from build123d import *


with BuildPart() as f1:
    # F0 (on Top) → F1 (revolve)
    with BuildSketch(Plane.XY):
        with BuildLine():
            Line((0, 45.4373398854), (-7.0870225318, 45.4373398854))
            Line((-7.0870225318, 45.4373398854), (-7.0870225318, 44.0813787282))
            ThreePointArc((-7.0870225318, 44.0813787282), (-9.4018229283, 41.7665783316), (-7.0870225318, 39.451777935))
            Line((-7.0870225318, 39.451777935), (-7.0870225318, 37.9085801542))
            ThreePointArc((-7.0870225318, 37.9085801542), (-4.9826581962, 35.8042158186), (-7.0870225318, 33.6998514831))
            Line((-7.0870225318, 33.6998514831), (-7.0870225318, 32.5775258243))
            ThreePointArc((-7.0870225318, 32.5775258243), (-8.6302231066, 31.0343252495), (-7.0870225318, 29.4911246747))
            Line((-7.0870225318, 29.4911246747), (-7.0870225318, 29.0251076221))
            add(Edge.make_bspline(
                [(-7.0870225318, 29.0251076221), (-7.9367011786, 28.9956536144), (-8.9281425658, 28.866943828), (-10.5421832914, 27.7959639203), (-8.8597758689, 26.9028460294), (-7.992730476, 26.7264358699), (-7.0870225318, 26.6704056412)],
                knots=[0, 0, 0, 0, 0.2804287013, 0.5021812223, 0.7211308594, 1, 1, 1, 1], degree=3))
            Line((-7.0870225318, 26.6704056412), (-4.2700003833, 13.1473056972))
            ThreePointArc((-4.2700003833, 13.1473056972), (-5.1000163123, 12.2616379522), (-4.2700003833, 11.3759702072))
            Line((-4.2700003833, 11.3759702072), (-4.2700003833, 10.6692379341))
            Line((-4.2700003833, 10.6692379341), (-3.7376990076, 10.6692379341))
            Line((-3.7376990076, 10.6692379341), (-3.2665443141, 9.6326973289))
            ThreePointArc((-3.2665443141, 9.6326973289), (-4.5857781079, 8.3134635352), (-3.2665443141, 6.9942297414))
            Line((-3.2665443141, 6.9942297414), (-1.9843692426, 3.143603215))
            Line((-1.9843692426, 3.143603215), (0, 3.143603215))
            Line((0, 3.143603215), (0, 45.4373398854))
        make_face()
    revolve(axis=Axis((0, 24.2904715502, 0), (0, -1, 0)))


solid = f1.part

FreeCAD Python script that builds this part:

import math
import FreeCAD as App
import Part
import Sketcher
from FreeCAD import Vector
Q = App.Units.Quantity

doc = App.newDocument("Part")
body = doc.addObject("PartDesign::Body", "Body")

# Sketch on XY plane
sketch1 = doc.addObject("Sketcher::SketchObject", "Sketch")
body.addObject(sketch1)
sketch1.AttachmentSupport = (doc.XY_Plane, [""])
sketch1.MapMode = "FlatFace"
sketch1.addGeometry([
    Part.LineSegment(Vector(0, 45.43734, 0), Vector(-7.087023, 45.43734, 0)),  # 0
    Part.LineSegment(Vector(-7.087023, 45.43734, 0), Vector(-7.087023, 44.081379, 0)),  # 1
    Part.ArcOfCircle(Part.Circle(Vector(-7.087023, 41.766578, 0), Vector(0, 0, 1), 2.3148), math.radians(90), math.radians(270)),  # 2
    Part.LineSegment(Vector(-7.087023, 39.451778, 0), Vector(-7.087023, 37.90858, 0)),  # 3
    Part.ArcOfCircle(Part.Circle(Vector(-7.087023, 35.804216, 0), Vector(0, 0, 1), 2.104364), math.radians(-90), math.radians(90)),  # 4
    Part.LineSegment(Vector(-7.087023, 33.699851, 0), Vector(-7.087023, 32.577526, 0)),  # 5
    Part.ArcOfCircle(Part.Circle(Vector(-7.087023, 31.034325, 0), Vector(0, 0, 1), 1.543201), math.radians(90), math.radians(270)),  # 6
    Part.LineSegment(Vector(-7.087023, 29.491125, 0), Vector(-7.087023, 29.025108, 0)),  # 7
    Part.BSplineCurve([Vector(-7.087023, 29.025108, 0), Vector(-7.936701, 28.995654, 0), Vector(-8.928143, 28.866944, 0), Vector(-10.542183, 27.795964, 0), Vector(-8.859776, 26.902846, 0), Vector(-7.99273, 26.726436, 0), Vector(-7.087023, 26.670406, 0)], [4, 1, 1, 1, 4], [0, 0.280428701, 0.502181222, 0.721130859, 1], False, 3, [1, 1, 1, 1, 1, 1, 1], False),  # 8
    Part.LineSegment(Vector(-7.087023, 26.670406, 0), Vector(-4.27, 13.147306, 0)),  # 9
    Part.ArcOfCircle(Part.Circle(Vector(-4.212483, 12.261638, 0), Vector(0, 0, 1), 0.887533), math.radians(93.715716), math.radians(266.284284)),  # 10
    Part.LineSegment(Vector(-4.27, 11.37597, 0), Vector(-4.27, 10.669238, 0)),  # 11
    Part.LineSegment(Vector(-4.27, 10.669238, 0), Vector(-3.737699, 10.669238, 0)),  # 12
    Part.LineSegment(Vector(-3.737699, 10.669238, 0), Vector(-3.266544, 9.632697, 0)),  # 13
    Part.ArcOfCircle(Part.Circle(Vector(-3.266544, 8.313464, 0), Vector(0, 0, 1), 1.319234), math.radians(90), math.radians(270)),  # 14
    Part.LineSegment(Vector(-3.266544, 6.99423, 0), Vector(-1.984369, 3.143603, 0)),  # 15
    Part.LineSegment(Vector(-1.984369, 3.143603, 0), Vector(0, 3.143603, 0)),  # 16
    Part.LineSegment(Vector(0, 3.143603, 0), Vector(0, 45.43734, 0)),  # 17
], False)
sketch1.addConstraint([
    Sketcher.Constraint("Block", 8),
    Sketcher.Constraint("Coincident", 0, 2, 1, 1),
    Sketcher.Constraint("Coincident", 1, 2, 2, 1),
    Sketcher.Constraint("Coincident", 2, 2, 3, 1),
    Sketcher.Constraint("Coincident", 3, 2, 4, 2),
    Sketcher.Constraint("Coincident", 4, 1, 5, 1),
    Sketcher.Constraint("Coincident", 5, 2, 6, 1),
    Sketcher.Constraint("Coincident", 6, 2, 7, 1),
    Sketcher.Constraint("Coincident", 7, 2, 8, 1),
    Sketcher.Constraint("Coincident", 8, 2, 9, 1),
    Sketcher.Constraint("Coincident", 9, 2, 10, 1),
    Sketcher.Constraint("Coincident", 10, 2, 11, 1),
    Sketcher.Constraint("Coincident", 11, 2, 12, 1),
    Sketcher.Constraint("Coincident", 12, 2, 13, 1),
    Sketcher.Constraint("Coincident", 13, 2, 14, 1),
    Sketcher.Constraint("Coincident", 14, 2, 15, 1),
    Sketcher.Constraint("Coincident", 15, 2, 16, 1),
    Sketcher.Constraint("Coincident", 16, 2, 17, 1),
    Sketcher.Constraint("Coincident", 17, 2, 0, 1),
    Sketcher.Constraint("Horizontal", 0),
    Sketcher.Constraint("Vertical", 1),
    Sketcher.Constraint("Vertical", 3),
    Sketcher.Constraint("Vertical", 5),
    Sketcher.Constraint("Vertical", 7),
    Sketcher.Constraint("Vertical", 11),
    Sketcher.Constraint("Horizontal", 12),
    Sketcher.Constraint("Horizontal", 16),
    Sketcher.Constraint("Vertical", 17),
    Sketcher.Constraint("PointOnObject", 16, 2, -2),
    Sketcher.Constraint("Vertical", 2, 3, 4, 3),
    Sketcher.Constraint("Vertical", 4, 3, 6, 3),
    Sketcher.Constraint("Vertical", 6, 3, 0, 2),
    Sketcher.Constraint("Vertical", 1, 2, 2, 2),
    Sketcher.Constraint("Vertical", 3, 2, 4, 1),
    Sketcher.Constraint("Vertical", 5, 2, 6, 2),
    Sketcher.Constraint("Vertical", 9, 2, 10, 2),
    Sketcher.Constraint("Vertical", 14, 3, 13, 2),
    Sketcher.Constraint("Vertical", 13, 2, 14, 2),
    Sketcher.Constraint("Radius", 2, Q("2.3148 mm")),
    Sketcher.Constraint("Radius", 6, Q("1.543201 mm")),
    Sketcher.Constraint("DistanceX", 9, 2, -1, 1, Q("4.27 mm")),
    Sketcher.Constraint("DistanceX", 12, 1, 12, 2, Q("0.532301 mm")),
    Sketcher.Constraint("Radius", 4, Q("2.104364 mm")),
    Sketcher.Constraint("Radius", 10, Q("0.887533 mm")),
    Sketcher.Constraint("Radius", 14, Q("1.319234 mm")),
    Sketcher.Constraint("DistanceY", 3, 2, 2, 3, Q("3.857998 mm")),
    Sketcher.Constraint("DistanceX", 16, 1, 16, 2, Q("1.984369 mm")),
    Sketcher.Constraint("DistanceY", 1, 2, 1, 1, Q("1.355961 mm")),
    Sketcher.Constraint("DistanceY", 10, 3, 0, 2, Q("33.175702 mm")),
    Sketcher.Constraint("DistanceY", 9, 2, 7, 2, Q("15.877802 mm")),
    Sketcher.Constraint("DistanceY", 11, 2, 10, 3, Q("1.5924 mm")),
    Sketcher.Constraint("DistanceY", 5, 2, 5, 1, Q("1.122326 mm")),
    Sketcher.Constraint("DistanceY", 7, 2, 7, 1, Q("0.466017 mm")),
    Sketcher.Constraint("DistanceY", 17, 1, 17, 2, Q("42.293737 mm")),
    Sketcher.Constraint("DistanceY", -1, 1, 14, 2, Q("6.99423 mm")),
    Sketcher.Constraint("DistanceX", 10, 3, 14, 3, Q("0.945939 mm")),
])
revolution = doc.addObject("PartDesign::Revolution", "Revolution")
body.addObject(revolution)
revolution.Profile = sketch1
revolution.ReferenceAxis = (sketch1, ["V_Axis"])
revolution.Angle = 360

doc.recompute()
